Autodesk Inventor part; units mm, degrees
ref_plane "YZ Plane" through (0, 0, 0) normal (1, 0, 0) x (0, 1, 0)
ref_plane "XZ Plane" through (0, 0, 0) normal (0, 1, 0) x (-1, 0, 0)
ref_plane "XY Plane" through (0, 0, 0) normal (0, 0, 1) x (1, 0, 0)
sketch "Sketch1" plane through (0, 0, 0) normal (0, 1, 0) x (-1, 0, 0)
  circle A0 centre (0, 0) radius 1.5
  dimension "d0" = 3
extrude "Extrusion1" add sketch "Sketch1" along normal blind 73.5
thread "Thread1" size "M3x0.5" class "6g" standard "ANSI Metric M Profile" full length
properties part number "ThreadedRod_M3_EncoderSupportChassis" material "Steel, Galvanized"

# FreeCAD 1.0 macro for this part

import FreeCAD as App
import Part
import Sketcher
Q = App.Units.Quantity

doc = App.newDocument("Part")
body = doc.addObject("PartDesign::Body", "Body")

sketch1 = body.newObject("Sketcher::SketchObject", "Sketch")
sketch1.AttachmentSupport = (doc.getObject("XZ_Plane"), [""])
sketch1.MapMode = "FlatFace"
sketch1.addGeometry(Part.Circle(App.Vector(0, 0, 0), App.Vector(0, 0, 1), 1.5), False)
sketch1.addConstraint([
    Sketcher.Constraint("Coincident", 0, 3, -1, 1),
    Sketcher.Constraint("Diameter", 0, Q("3 mm")),
])
pad1 = body.newObject("PartDesign::Pad", "Pad")
pad1.Profile = sketch1
pad1.Length = 73.5
pad1.Reversed = True

doc.recompute()
